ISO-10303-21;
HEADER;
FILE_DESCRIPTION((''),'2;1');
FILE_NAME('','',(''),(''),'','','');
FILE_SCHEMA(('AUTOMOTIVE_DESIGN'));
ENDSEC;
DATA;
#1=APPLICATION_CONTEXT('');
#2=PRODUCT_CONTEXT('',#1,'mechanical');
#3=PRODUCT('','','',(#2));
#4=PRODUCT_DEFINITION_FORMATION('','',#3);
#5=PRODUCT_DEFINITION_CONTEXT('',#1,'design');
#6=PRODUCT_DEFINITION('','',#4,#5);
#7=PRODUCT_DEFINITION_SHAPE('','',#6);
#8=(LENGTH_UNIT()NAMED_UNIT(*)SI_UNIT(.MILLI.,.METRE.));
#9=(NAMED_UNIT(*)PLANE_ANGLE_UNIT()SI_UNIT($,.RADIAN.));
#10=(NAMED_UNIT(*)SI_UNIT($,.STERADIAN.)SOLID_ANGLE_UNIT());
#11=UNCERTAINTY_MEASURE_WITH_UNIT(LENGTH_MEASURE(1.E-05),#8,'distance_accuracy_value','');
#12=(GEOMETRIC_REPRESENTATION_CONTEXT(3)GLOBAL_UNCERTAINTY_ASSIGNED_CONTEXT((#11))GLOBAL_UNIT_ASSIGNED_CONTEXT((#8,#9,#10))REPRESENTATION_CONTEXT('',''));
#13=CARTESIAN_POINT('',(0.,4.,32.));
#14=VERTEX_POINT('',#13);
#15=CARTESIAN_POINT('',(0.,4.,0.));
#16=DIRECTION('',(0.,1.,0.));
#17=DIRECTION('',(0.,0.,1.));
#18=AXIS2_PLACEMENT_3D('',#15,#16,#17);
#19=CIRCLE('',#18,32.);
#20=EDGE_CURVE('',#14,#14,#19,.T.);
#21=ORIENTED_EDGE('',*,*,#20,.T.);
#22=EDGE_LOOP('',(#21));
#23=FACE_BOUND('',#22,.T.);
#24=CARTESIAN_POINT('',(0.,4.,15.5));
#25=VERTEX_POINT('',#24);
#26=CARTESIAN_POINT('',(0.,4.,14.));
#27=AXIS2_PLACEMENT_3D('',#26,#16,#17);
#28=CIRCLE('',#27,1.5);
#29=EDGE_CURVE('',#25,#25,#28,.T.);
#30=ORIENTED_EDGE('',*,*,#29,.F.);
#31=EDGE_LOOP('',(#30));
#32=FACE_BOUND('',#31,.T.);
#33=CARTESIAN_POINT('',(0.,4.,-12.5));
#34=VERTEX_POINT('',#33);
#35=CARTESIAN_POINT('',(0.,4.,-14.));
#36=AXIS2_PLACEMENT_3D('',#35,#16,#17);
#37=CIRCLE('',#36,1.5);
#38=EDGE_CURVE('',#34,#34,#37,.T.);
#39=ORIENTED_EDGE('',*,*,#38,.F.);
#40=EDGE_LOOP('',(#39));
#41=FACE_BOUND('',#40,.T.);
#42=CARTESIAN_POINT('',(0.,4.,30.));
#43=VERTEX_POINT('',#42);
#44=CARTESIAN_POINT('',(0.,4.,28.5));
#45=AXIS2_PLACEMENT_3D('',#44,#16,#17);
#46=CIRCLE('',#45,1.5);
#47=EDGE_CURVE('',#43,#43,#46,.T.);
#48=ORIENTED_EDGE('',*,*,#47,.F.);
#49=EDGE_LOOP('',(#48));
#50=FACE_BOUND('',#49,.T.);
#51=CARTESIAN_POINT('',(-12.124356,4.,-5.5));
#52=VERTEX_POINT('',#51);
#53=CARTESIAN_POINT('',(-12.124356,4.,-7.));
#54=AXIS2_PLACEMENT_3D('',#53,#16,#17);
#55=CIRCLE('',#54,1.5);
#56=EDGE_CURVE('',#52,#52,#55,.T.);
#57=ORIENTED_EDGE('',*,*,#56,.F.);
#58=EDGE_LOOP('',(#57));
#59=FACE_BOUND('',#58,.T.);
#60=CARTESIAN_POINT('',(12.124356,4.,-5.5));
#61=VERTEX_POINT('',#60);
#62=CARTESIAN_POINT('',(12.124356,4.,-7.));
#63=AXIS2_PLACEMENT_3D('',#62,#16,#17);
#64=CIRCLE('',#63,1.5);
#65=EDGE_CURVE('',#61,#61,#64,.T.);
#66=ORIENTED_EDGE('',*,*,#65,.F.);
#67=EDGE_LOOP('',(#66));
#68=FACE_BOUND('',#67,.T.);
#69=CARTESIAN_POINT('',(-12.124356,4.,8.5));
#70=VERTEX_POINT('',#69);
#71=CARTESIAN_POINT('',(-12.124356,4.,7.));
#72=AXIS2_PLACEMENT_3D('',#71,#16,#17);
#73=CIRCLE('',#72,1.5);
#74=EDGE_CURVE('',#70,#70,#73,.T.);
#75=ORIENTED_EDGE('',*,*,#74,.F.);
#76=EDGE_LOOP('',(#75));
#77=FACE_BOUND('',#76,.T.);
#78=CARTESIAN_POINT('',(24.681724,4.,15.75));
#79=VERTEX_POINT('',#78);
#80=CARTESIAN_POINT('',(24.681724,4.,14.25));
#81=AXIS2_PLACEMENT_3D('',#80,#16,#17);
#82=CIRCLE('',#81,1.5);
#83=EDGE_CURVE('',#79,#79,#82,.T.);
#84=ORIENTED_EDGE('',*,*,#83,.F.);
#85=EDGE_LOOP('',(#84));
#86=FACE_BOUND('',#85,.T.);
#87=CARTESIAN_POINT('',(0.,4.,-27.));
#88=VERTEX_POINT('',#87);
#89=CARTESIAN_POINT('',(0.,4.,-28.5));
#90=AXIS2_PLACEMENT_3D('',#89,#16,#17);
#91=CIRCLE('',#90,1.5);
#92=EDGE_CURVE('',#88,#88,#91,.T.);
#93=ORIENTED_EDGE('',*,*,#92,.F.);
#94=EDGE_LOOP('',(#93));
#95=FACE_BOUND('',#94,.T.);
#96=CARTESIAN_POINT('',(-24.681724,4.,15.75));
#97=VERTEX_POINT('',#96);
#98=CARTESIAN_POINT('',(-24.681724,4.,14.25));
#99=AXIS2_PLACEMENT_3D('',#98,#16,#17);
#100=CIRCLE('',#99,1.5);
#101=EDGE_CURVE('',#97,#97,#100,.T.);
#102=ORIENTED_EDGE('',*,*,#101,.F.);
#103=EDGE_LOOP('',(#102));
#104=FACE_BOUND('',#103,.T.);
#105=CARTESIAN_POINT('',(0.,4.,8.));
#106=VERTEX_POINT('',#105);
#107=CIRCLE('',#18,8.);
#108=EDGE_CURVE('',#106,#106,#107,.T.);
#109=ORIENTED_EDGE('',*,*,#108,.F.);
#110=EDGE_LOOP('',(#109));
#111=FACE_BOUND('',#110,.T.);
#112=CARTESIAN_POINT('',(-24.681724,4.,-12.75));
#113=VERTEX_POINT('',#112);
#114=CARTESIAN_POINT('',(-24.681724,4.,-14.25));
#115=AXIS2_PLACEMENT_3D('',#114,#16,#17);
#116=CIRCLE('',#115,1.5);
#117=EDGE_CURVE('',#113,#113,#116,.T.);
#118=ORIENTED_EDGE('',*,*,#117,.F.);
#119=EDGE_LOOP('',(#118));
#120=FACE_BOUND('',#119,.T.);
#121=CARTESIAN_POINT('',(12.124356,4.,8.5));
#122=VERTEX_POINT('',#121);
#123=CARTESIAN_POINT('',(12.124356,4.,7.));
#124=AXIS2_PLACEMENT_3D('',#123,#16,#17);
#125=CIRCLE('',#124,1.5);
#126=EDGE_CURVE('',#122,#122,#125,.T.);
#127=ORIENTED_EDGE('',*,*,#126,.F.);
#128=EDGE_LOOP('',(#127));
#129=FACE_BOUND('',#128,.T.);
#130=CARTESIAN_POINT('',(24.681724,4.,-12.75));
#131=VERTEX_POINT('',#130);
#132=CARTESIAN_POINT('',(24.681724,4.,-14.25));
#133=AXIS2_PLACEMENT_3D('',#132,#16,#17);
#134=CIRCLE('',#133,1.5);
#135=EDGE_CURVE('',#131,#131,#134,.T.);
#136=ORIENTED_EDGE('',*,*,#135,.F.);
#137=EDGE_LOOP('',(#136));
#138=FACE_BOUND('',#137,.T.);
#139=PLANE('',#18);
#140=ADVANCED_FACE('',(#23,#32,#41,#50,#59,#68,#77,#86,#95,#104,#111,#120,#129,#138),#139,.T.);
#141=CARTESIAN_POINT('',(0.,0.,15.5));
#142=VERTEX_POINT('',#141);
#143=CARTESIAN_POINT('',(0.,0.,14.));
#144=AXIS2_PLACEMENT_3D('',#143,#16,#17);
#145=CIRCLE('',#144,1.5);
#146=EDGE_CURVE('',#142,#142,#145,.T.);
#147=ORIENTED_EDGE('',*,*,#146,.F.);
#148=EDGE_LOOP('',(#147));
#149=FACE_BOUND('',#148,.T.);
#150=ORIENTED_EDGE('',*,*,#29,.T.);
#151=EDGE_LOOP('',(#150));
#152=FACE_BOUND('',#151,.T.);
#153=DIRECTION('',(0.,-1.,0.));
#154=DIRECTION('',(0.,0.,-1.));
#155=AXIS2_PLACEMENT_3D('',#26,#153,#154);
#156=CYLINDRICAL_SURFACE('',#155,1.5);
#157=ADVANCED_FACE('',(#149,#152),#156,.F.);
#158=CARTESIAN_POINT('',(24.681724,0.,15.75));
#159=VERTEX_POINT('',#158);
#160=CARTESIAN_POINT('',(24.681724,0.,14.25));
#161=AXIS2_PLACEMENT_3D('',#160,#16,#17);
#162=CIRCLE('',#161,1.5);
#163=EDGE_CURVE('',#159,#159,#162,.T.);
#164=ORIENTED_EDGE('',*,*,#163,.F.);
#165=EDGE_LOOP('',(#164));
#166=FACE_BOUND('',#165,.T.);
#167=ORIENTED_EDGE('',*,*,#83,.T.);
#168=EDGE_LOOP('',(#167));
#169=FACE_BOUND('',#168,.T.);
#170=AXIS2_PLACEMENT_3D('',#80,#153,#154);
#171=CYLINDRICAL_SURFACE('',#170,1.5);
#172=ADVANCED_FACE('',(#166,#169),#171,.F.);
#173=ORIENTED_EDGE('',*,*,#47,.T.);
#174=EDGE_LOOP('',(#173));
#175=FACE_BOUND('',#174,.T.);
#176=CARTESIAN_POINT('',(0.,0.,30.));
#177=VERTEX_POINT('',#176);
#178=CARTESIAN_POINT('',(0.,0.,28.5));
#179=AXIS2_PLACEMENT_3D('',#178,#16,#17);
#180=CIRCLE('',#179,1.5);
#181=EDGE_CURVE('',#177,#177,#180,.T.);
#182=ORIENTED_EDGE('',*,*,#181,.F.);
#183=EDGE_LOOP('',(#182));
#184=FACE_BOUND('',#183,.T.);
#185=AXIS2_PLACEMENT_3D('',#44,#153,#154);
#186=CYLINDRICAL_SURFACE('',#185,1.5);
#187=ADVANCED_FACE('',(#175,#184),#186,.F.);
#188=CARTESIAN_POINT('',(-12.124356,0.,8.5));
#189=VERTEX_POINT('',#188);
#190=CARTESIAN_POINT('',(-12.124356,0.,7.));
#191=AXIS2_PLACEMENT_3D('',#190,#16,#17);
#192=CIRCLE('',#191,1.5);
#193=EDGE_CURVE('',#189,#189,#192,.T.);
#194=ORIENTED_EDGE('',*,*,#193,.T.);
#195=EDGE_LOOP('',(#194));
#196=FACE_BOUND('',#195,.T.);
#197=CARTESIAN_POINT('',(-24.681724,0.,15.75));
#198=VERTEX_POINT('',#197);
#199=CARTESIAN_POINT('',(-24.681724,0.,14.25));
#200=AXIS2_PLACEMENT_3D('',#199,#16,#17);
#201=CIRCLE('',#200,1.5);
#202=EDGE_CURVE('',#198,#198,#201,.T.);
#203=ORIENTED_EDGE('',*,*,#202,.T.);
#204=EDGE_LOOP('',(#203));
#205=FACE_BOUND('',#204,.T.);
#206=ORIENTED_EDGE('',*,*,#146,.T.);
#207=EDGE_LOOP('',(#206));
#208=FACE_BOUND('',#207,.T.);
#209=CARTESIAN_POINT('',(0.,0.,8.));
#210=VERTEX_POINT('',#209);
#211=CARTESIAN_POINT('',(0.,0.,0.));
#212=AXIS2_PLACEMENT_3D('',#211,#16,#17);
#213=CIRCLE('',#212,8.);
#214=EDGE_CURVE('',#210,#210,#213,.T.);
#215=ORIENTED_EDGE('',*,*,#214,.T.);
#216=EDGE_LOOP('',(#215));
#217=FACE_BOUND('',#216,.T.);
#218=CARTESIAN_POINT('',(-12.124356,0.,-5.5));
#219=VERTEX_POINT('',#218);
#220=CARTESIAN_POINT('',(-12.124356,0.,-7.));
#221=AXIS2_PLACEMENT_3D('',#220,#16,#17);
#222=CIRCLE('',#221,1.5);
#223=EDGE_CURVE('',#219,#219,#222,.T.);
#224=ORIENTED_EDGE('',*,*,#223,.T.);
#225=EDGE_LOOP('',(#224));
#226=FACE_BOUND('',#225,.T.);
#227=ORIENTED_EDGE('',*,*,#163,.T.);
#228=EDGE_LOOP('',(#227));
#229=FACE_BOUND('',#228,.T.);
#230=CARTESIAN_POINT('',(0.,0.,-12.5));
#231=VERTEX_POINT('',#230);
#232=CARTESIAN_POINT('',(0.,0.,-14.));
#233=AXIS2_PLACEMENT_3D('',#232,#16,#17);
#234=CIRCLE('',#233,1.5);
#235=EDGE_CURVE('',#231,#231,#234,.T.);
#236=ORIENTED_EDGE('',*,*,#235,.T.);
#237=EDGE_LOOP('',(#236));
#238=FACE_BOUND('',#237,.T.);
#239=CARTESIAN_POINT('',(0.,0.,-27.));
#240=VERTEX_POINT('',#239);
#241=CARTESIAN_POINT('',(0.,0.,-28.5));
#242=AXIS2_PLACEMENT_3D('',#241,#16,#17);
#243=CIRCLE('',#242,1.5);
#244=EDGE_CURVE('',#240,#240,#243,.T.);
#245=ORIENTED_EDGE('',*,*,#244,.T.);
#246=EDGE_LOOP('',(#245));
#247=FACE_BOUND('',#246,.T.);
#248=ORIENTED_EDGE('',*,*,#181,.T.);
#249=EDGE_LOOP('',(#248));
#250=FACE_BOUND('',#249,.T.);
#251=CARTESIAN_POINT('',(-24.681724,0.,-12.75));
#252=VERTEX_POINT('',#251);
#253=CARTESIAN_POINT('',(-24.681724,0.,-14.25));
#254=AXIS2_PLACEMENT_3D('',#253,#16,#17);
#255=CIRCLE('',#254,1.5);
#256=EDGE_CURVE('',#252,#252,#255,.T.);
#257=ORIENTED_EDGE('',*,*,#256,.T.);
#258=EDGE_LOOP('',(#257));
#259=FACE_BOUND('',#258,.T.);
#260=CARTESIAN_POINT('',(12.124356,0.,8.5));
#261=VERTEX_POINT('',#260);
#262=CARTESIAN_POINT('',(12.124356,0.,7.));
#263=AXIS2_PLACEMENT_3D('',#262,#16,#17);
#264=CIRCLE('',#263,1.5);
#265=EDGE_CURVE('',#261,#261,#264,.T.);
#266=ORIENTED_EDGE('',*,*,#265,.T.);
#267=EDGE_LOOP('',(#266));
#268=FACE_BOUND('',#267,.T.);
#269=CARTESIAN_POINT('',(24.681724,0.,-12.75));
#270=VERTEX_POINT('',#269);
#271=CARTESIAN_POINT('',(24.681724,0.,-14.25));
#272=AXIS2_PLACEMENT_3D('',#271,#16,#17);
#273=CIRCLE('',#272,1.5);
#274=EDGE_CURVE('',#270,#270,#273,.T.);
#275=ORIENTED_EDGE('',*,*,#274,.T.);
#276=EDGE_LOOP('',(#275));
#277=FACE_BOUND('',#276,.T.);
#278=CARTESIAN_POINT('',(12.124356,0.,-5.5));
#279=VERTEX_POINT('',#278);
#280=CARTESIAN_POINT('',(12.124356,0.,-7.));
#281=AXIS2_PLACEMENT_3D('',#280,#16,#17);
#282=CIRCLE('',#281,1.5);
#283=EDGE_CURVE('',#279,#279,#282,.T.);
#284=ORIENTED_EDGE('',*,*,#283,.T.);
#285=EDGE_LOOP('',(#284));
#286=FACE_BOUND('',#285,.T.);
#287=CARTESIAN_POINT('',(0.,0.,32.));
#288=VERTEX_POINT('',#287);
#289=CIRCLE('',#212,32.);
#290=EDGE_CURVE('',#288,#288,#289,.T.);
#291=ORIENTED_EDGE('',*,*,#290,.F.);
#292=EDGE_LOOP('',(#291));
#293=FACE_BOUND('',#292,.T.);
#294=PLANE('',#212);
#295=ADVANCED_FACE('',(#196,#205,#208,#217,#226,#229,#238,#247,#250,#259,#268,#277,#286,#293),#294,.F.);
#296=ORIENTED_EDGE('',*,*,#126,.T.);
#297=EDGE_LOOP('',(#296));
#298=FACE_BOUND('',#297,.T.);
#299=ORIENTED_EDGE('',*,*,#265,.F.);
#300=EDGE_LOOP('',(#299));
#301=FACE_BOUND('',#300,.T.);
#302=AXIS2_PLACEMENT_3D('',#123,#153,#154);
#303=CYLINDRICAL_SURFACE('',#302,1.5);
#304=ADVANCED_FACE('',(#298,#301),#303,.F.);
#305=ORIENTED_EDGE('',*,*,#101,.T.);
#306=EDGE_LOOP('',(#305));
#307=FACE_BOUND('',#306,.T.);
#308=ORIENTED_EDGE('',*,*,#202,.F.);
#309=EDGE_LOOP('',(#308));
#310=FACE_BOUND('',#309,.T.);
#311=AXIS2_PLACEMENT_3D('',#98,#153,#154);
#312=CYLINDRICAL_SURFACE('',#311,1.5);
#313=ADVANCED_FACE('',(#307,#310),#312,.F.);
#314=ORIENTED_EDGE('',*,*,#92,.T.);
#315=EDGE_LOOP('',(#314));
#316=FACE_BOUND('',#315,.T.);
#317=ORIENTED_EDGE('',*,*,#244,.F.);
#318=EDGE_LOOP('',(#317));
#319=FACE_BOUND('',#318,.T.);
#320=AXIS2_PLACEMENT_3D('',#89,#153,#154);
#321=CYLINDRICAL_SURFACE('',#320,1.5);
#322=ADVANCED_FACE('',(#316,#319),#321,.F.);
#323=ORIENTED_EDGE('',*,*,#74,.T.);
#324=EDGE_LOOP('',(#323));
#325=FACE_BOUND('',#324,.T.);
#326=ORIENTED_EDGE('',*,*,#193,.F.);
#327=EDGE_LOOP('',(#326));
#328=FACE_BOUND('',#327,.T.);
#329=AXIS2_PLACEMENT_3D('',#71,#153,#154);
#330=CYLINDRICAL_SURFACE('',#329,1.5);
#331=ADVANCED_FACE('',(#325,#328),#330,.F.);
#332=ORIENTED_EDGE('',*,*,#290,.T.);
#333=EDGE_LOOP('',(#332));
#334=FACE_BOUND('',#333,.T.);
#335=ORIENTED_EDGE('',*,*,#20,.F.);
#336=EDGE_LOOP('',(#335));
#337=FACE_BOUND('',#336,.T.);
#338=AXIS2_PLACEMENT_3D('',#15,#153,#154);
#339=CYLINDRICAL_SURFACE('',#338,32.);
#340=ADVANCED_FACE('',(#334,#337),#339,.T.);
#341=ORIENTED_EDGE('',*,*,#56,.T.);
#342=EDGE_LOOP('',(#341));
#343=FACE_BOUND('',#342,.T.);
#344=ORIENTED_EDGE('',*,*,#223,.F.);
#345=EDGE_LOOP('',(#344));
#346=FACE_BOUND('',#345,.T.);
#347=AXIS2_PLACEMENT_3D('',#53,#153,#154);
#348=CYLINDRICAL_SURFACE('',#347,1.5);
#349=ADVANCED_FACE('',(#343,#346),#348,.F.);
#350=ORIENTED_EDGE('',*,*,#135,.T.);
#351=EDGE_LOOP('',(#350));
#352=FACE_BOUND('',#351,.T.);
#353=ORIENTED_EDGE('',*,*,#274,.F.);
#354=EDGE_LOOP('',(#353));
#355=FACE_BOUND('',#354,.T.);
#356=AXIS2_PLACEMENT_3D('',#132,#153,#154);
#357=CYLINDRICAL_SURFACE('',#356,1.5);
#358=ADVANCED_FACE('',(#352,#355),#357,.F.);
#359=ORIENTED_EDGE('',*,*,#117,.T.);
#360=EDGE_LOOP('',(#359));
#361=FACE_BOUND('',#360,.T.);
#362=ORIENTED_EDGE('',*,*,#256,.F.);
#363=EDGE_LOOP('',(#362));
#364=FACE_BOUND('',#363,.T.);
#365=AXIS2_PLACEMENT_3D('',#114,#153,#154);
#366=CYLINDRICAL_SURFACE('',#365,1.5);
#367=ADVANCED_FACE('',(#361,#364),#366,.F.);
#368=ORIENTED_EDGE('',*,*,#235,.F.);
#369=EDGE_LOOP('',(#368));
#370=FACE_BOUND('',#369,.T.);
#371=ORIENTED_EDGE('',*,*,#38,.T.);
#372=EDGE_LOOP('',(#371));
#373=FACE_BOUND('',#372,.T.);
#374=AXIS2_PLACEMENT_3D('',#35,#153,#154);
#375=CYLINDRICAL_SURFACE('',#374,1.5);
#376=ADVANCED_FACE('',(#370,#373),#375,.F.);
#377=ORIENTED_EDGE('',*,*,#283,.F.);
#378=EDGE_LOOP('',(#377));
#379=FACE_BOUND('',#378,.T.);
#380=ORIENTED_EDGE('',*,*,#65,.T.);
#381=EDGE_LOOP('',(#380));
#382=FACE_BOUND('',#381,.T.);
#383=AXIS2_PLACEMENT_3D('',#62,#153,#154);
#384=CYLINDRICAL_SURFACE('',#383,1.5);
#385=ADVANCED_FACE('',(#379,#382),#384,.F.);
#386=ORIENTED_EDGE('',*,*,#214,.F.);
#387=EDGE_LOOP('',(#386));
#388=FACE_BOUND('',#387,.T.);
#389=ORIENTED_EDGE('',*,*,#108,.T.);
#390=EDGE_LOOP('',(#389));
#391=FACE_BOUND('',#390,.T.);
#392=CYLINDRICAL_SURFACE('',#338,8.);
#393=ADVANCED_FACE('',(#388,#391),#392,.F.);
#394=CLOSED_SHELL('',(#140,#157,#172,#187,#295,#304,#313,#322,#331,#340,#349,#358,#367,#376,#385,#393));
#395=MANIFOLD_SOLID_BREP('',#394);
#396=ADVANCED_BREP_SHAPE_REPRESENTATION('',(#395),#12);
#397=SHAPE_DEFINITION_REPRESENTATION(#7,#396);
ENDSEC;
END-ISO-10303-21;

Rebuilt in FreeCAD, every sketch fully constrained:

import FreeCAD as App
import Part
import Sketcher
from FreeCAD import Vector

doc = App.newDocument("Part")
body = doc.addObject("PartDesign::Body", "Body")

# Sketch on XZ plane
sketch1 = doc.addObject("Sketcher::SketchObject", "Sketch")
body.addObject(sketch1)
sketch1.AttachmentSupport = (doc.XZ_Plane, [""])
sketch1.MapMode = "FlatFace"
sketch1.addGeometry([
    Part.Circle(Vector(0, 0, 0), Vector(0, 0, 1), 32),  # 0
    Part.Circle(Vector(-24.681724, -14.25, 0), Vector(0, 0, 1), 1.5),  # 1
    Part.Circle(Vector(0, -28.5, 0), Vector(0, 0, 1), 1.5),  # 2
    Part.Circle(Vector(-12.124356, -7, 0), Vector(0, 0, 1), 1.5),  # 3
    Part.Circle(Vector(0, -14, 0), Vector(0, 0, 1), 1.5),  # 4
    Part.Circle(Vector(-24.681724, 14.25, 0), Vector(0, 0, 1), 1.5),  # 5
    Part.Circle(Vector(-12.124356, 7, 0), Vector(0, 0, 1), 1.5),  # 6
    Part.Circle(Vector(12.124356, -7, 0), Vector(0, 0, 1), 1.5),  # 7
    Part.Circle(Vector(24.681724, -14.25, 0), Vector(0, 0, 1), 1.5),  # 8
    Part.Circle(Vector(0, 0, 0), Vector(0, 0, 1), 8),  # 9
    Part.Circle(Vector(0, 14, 0), Vector(0, 0, 1), 1.5),  # 10
    Part.Circle(Vector(12.124356, 7, 0), Vector(0, 0, 1), 1.5),  # 11
    Part.Circle(Vector(0, 28.5, 0), Vector(0, 0, 1), 1.5),  # 12
    Part.Circle(Vector(24.681724, 14.25, 0), Vector(0, 0, 1), 1.5),  # 13
], False)
sketch1.addConstraint([
    Sketcher.Constraint("Coincident", 0, 3, -1, 1),
    Sketcher.Constraint("Coincident", 9, 3, -1, 1),
    Sketcher.Constraint("Equal", 1, 2),
    Sketcher.Constraint("Equal", 2, 3),
    Sketcher.Constraint("Equal", 3, 4),
    Sketcher.Constraint("Equal", 4, 5),
    Sketcher.Constraint("Equal", 5, 6),
    Sketcher.Constraint("Equal", 6, 7),
    Sketcher.Constraint("Equal", 7, 8),
    Sketcher.Constraint("Equal", 8, 10),
    Sketcher.Constraint("Equal", 10, 11),
    Sketcher.Constraint("Equal", 11, 12),
    Sketcher.Constraint("Equal", 12, 13),
    Sketcher.Constraint("Symmetric", 6, 3, 7, 3, -1, 1),
    Sketcher.Constraint("Symmetric", 5, 3, 8, 3, -1, 1),
    Sketcher.Constraint("Symmetric", 4, 3, 10, 3, -1, 1),
    Sketcher.Constraint("Symmetric", 3, 3, 11, 3, -1, 1),
    Sketcher.Constraint("Symmetric", 2, 3, 12, 3, -1, 1),
    Sketcher.Constraint("Symmetric", 1, 3, 13, 3, -1, 1),
    Sketcher.Constraint("Symmetric", 3, 3, 7, 3, -2),
    Sketcher.Constraint("Symmetric", 1, 3, 8, 3, -2),
    Sketcher.Constraint("PointOnObject", 2, 3, -2),
    Sketcher.Constraint("PointOnObject", 4, 3, -2),
    Sketcher.Constraint("Diameter", 0, 64.0),
    Sketcher.Constraint("Diameter", 1, 3.0),
    Sketcher.Constraint("Diameter", 9, 16.0),
    Sketcher.Constraint("DistanceY", 3, 3, -1, 1, 7.0),
    Sketcher.Constraint("DistanceY", 4, 3, -1, 1, 14.0),
    Sketcher.Constraint("DistanceY", 2, 3, -1, 1, 28.5),
    Sketcher.Constraint("DistanceY", 1, 3, 5, 3, 28.5),
    Sketcher.Constraint("DistanceX", 1, 3, 3, 3, 12.557368),
    Sketcher.Constraint("DistanceX", 3, 3, 7, 3, 24.248711),
])
pad1 = doc.addObject("PartDesign::Pad", "Pad")
body.addObject(pad1)
pad1.Profile = sketch1
pad1.Length = 4
pad1.Reversed = True

doc.recompute()
